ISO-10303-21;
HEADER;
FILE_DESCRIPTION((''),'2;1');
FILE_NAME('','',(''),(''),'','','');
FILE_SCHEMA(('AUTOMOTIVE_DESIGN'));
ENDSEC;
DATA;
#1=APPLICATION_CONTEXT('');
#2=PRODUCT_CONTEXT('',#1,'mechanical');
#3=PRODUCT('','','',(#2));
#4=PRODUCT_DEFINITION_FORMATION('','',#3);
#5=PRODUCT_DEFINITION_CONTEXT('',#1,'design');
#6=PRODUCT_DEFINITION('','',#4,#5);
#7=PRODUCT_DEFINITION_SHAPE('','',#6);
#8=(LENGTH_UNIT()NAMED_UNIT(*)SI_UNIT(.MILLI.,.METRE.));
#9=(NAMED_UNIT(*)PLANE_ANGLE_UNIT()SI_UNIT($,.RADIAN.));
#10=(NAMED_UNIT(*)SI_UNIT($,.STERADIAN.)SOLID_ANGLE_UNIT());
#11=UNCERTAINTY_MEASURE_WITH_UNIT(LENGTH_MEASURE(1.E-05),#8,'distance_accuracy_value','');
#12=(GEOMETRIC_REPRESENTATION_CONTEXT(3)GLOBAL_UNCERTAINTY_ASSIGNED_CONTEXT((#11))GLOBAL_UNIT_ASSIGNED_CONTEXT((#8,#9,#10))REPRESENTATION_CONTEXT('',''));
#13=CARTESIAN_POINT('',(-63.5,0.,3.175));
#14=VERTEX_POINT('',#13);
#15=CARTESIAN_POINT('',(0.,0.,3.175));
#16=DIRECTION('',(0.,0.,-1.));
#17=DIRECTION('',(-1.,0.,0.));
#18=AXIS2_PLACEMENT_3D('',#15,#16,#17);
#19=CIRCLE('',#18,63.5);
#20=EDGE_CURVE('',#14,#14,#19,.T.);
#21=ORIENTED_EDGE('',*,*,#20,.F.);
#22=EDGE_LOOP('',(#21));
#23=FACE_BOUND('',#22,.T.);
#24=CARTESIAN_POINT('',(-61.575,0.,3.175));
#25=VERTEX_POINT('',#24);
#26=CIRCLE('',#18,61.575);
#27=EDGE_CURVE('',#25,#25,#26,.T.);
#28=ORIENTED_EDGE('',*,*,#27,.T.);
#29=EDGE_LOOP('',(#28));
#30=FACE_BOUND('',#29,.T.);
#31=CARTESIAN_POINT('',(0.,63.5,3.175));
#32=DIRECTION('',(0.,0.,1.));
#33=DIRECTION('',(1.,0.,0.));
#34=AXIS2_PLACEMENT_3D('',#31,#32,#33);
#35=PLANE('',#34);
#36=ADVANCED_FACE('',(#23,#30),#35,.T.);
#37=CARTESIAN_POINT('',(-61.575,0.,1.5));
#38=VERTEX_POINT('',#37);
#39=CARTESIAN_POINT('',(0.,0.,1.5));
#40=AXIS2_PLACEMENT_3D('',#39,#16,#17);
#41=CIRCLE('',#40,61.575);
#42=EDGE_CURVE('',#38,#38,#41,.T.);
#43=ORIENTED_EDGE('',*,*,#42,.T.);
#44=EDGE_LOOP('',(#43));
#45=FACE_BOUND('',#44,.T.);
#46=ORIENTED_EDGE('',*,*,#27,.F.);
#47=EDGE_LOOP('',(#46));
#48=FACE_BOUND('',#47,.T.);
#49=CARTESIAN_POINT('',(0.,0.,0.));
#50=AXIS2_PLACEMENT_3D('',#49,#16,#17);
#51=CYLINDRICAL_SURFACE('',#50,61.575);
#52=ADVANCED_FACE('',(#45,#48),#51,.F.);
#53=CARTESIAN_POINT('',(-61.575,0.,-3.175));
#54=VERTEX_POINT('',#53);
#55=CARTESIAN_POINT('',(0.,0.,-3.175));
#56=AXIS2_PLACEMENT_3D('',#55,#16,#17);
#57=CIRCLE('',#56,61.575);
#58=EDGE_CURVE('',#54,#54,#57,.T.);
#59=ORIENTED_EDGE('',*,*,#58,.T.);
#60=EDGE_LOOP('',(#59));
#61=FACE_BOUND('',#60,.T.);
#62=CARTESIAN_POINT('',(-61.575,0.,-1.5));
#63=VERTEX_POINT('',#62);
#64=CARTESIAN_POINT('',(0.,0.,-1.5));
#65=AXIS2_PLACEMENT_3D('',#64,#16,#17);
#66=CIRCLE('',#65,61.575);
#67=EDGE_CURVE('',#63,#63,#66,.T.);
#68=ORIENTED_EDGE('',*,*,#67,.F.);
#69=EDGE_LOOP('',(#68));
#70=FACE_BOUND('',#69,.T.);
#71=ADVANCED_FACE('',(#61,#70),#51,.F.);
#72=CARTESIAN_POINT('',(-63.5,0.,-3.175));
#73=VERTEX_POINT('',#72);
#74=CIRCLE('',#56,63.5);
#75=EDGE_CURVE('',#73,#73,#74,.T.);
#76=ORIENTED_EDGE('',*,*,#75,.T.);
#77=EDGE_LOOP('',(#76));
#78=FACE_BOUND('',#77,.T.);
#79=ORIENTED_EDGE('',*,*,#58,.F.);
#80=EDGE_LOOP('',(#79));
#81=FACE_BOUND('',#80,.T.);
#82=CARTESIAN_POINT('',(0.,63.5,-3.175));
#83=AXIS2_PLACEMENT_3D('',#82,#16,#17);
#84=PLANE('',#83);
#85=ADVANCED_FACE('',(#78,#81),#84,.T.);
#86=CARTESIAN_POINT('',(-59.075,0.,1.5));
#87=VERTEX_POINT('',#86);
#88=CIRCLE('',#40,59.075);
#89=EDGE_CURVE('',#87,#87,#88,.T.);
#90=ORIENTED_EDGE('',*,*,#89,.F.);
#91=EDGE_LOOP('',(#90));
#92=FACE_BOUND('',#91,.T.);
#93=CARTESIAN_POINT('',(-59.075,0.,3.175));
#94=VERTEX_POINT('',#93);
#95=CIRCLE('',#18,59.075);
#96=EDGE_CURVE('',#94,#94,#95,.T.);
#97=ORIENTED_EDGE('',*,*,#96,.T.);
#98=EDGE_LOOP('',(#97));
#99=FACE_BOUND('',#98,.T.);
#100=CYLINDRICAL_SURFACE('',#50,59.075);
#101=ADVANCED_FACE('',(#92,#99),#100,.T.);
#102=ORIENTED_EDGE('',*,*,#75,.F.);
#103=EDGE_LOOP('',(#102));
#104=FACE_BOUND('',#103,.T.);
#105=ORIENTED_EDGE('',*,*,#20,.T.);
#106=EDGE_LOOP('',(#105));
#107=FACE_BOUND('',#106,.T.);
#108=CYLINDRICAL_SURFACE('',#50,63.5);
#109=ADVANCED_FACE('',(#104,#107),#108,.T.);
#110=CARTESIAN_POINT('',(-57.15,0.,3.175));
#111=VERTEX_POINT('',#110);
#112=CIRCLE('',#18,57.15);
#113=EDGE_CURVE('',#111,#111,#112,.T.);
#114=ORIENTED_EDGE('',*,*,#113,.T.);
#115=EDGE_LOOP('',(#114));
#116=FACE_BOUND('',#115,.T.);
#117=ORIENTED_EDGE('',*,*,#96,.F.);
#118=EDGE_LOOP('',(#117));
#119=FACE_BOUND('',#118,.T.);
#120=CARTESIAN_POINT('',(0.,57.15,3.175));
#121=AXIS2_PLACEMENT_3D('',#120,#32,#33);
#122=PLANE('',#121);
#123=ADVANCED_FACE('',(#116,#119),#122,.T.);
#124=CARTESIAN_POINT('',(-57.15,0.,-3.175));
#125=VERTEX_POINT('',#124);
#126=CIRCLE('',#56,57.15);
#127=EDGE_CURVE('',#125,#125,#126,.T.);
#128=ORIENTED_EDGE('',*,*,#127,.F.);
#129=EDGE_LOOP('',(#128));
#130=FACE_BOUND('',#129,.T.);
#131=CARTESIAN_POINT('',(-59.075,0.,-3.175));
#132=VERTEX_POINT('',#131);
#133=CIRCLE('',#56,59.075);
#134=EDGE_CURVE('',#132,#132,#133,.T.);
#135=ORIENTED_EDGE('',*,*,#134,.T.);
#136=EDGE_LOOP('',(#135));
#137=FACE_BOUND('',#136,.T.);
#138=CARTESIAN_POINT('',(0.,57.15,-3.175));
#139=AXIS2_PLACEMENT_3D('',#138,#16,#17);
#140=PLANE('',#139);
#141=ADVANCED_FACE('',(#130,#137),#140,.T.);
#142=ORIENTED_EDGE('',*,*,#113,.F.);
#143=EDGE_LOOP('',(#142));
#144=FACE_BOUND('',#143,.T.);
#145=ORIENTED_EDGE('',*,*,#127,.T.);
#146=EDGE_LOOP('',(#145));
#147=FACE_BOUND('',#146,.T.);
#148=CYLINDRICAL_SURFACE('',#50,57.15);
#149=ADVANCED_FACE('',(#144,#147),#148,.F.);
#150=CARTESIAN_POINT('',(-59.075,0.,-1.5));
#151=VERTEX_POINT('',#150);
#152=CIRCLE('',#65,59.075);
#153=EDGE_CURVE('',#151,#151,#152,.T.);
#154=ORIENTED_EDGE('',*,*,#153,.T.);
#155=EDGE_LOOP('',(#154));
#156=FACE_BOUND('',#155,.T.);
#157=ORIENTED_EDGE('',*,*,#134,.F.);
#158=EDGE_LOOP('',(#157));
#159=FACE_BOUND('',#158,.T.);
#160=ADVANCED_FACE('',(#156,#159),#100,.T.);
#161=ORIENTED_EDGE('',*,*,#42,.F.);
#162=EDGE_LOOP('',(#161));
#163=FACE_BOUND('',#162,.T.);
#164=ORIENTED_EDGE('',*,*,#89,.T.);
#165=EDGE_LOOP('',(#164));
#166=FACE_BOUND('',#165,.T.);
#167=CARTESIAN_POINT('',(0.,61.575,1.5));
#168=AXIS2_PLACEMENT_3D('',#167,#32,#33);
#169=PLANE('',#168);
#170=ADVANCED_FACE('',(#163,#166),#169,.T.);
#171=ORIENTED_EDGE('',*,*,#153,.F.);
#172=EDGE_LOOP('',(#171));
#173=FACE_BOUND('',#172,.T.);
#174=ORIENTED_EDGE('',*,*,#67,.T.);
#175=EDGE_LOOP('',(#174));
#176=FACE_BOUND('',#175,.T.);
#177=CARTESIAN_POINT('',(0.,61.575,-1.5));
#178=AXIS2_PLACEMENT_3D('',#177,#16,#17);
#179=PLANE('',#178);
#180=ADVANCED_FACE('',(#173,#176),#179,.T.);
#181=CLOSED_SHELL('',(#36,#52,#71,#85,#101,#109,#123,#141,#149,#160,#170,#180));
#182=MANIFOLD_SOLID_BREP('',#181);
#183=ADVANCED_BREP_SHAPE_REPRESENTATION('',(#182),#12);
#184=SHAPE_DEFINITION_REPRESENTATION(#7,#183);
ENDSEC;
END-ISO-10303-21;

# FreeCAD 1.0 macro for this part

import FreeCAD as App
import Part
import Sketcher
from FreeCAD import Vector
Q = App.Units.Quantity


def add_polygon(sketch, points):
    """Adds a closed chain of lines whose ends are joined by coincident constraints."""
    first, n = sketch.GeometryCount, len(points)
    for a, b in zip(points, points[1:] + points[:1]):
        sketch.addGeometry(Part.LineSegment(App.Vector(*a, 0), App.Vector(*b, 0)), False)
    for i in range(n):
        sketch.addConstraint(Sketcher.Constraint("Coincident", first + i, 2, first + (i + 1) % n, 1))

doc = App.newDocument("Part")
params = doc.addObject("Spreadsheet::Sheet", "Params")
for row, (alias, value) in enumerate([
    ("sketch1_width", "2.5 mm"),
    ("sketch1_height", "6.35 mm"),
    ("revolution_angle", "360 deg"),
], start=1):
    params.set(f"A{row}", alias)
    params.set(f"B{row}", "=" + value)
    params.setAlias(f"B{row}", alias)

body = doc.addObject("PartDesign::Body", "Body")

sketch1 = body.newObject("Sketcher::SketchObject", "Sketch")
sketch1.AttachmentSupport = (doc.getObject("YZ_Plane"), [""])
sketch1.MapMode = "FlatFace"
add_polygon(sketch1, [(63.5, -3.2), (63.5, 3.2), (61.6, 3.2), (61.6, 1.5), (59.1, 1.5), (59.1, 3.2), (57.1, 3.2), (57.1, -3.2), (59.1, -3.2), (59.1, -1.5), (61.6, -1.5), (61.6, -3.2)])
sketch1.addConstraint([
    Sketcher.Constraint("Vertical", 0),
    Sketcher.Constraint("Horizontal", 1),
    Sketcher.Constraint("Vertical", 2),
    Sketcher.Constraint("Horizontal", 3),
    Sketcher.Constraint("Vertical", 4),
    Sketcher.Constraint("Horizontal", 5),
    Sketcher.Constraint("Vertical", 6),
    Sketcher.Constraint("Horizontal", 7),
    Sketcher.Constraint("Vertical", 8),
    Sketcher.Constraint("Horizontal", 9),
    Sketcher.Constraint("Vertical", 10),
    Sketcher.Constraint("Horizontal", 11),
    Sketcher.Constraint("Symmetric", 4, 2, 7, 2, -1),
    Sketcher.Constraint("Symmetric", 2, 2, 9, 2, -1),
    Sketcher.Constraint("Horizontal", 1, 2, 4, 2),
    Sketcher.Constraint("Horizontal", 7, 2, 10, 2),
    Sketcher.Constraint("Equal", 1, 5),
    Sketcher.Constraint("DistanceX", 3, 2, 3, 1, Q("2.5 mm")),
    Sketcher.Constraint("DistanceY", 8, 2, 3, 2, Q("3 mm")),
    Sketcher.Constraint("DistanceY", 0, 1, 0, 2, Q("6.35 mm")),
    Sketcher.Constraint("DistanceX", -1, 1, 0, 2, Q("63.5 mm")),
    Sketcher.Constraint("DistanceX", 1, 2, 1, 1, Q("1.925 mm")),
])
sketch1.setExpression("Constraints[29]", "Params.sketch1_width")
sketch1.setExpression("Constraints[31]", "Params.sketch1_height")
revolution = body.newObject("PartDesign::Revolution", "Revolution")
revolution.Profile = sketch1
revolution.ReferenceAxis = (sketch1, ["V_Axis"])
revolution.setExpression("Angle", "Params.revolution_angle")

doc.recompute()
